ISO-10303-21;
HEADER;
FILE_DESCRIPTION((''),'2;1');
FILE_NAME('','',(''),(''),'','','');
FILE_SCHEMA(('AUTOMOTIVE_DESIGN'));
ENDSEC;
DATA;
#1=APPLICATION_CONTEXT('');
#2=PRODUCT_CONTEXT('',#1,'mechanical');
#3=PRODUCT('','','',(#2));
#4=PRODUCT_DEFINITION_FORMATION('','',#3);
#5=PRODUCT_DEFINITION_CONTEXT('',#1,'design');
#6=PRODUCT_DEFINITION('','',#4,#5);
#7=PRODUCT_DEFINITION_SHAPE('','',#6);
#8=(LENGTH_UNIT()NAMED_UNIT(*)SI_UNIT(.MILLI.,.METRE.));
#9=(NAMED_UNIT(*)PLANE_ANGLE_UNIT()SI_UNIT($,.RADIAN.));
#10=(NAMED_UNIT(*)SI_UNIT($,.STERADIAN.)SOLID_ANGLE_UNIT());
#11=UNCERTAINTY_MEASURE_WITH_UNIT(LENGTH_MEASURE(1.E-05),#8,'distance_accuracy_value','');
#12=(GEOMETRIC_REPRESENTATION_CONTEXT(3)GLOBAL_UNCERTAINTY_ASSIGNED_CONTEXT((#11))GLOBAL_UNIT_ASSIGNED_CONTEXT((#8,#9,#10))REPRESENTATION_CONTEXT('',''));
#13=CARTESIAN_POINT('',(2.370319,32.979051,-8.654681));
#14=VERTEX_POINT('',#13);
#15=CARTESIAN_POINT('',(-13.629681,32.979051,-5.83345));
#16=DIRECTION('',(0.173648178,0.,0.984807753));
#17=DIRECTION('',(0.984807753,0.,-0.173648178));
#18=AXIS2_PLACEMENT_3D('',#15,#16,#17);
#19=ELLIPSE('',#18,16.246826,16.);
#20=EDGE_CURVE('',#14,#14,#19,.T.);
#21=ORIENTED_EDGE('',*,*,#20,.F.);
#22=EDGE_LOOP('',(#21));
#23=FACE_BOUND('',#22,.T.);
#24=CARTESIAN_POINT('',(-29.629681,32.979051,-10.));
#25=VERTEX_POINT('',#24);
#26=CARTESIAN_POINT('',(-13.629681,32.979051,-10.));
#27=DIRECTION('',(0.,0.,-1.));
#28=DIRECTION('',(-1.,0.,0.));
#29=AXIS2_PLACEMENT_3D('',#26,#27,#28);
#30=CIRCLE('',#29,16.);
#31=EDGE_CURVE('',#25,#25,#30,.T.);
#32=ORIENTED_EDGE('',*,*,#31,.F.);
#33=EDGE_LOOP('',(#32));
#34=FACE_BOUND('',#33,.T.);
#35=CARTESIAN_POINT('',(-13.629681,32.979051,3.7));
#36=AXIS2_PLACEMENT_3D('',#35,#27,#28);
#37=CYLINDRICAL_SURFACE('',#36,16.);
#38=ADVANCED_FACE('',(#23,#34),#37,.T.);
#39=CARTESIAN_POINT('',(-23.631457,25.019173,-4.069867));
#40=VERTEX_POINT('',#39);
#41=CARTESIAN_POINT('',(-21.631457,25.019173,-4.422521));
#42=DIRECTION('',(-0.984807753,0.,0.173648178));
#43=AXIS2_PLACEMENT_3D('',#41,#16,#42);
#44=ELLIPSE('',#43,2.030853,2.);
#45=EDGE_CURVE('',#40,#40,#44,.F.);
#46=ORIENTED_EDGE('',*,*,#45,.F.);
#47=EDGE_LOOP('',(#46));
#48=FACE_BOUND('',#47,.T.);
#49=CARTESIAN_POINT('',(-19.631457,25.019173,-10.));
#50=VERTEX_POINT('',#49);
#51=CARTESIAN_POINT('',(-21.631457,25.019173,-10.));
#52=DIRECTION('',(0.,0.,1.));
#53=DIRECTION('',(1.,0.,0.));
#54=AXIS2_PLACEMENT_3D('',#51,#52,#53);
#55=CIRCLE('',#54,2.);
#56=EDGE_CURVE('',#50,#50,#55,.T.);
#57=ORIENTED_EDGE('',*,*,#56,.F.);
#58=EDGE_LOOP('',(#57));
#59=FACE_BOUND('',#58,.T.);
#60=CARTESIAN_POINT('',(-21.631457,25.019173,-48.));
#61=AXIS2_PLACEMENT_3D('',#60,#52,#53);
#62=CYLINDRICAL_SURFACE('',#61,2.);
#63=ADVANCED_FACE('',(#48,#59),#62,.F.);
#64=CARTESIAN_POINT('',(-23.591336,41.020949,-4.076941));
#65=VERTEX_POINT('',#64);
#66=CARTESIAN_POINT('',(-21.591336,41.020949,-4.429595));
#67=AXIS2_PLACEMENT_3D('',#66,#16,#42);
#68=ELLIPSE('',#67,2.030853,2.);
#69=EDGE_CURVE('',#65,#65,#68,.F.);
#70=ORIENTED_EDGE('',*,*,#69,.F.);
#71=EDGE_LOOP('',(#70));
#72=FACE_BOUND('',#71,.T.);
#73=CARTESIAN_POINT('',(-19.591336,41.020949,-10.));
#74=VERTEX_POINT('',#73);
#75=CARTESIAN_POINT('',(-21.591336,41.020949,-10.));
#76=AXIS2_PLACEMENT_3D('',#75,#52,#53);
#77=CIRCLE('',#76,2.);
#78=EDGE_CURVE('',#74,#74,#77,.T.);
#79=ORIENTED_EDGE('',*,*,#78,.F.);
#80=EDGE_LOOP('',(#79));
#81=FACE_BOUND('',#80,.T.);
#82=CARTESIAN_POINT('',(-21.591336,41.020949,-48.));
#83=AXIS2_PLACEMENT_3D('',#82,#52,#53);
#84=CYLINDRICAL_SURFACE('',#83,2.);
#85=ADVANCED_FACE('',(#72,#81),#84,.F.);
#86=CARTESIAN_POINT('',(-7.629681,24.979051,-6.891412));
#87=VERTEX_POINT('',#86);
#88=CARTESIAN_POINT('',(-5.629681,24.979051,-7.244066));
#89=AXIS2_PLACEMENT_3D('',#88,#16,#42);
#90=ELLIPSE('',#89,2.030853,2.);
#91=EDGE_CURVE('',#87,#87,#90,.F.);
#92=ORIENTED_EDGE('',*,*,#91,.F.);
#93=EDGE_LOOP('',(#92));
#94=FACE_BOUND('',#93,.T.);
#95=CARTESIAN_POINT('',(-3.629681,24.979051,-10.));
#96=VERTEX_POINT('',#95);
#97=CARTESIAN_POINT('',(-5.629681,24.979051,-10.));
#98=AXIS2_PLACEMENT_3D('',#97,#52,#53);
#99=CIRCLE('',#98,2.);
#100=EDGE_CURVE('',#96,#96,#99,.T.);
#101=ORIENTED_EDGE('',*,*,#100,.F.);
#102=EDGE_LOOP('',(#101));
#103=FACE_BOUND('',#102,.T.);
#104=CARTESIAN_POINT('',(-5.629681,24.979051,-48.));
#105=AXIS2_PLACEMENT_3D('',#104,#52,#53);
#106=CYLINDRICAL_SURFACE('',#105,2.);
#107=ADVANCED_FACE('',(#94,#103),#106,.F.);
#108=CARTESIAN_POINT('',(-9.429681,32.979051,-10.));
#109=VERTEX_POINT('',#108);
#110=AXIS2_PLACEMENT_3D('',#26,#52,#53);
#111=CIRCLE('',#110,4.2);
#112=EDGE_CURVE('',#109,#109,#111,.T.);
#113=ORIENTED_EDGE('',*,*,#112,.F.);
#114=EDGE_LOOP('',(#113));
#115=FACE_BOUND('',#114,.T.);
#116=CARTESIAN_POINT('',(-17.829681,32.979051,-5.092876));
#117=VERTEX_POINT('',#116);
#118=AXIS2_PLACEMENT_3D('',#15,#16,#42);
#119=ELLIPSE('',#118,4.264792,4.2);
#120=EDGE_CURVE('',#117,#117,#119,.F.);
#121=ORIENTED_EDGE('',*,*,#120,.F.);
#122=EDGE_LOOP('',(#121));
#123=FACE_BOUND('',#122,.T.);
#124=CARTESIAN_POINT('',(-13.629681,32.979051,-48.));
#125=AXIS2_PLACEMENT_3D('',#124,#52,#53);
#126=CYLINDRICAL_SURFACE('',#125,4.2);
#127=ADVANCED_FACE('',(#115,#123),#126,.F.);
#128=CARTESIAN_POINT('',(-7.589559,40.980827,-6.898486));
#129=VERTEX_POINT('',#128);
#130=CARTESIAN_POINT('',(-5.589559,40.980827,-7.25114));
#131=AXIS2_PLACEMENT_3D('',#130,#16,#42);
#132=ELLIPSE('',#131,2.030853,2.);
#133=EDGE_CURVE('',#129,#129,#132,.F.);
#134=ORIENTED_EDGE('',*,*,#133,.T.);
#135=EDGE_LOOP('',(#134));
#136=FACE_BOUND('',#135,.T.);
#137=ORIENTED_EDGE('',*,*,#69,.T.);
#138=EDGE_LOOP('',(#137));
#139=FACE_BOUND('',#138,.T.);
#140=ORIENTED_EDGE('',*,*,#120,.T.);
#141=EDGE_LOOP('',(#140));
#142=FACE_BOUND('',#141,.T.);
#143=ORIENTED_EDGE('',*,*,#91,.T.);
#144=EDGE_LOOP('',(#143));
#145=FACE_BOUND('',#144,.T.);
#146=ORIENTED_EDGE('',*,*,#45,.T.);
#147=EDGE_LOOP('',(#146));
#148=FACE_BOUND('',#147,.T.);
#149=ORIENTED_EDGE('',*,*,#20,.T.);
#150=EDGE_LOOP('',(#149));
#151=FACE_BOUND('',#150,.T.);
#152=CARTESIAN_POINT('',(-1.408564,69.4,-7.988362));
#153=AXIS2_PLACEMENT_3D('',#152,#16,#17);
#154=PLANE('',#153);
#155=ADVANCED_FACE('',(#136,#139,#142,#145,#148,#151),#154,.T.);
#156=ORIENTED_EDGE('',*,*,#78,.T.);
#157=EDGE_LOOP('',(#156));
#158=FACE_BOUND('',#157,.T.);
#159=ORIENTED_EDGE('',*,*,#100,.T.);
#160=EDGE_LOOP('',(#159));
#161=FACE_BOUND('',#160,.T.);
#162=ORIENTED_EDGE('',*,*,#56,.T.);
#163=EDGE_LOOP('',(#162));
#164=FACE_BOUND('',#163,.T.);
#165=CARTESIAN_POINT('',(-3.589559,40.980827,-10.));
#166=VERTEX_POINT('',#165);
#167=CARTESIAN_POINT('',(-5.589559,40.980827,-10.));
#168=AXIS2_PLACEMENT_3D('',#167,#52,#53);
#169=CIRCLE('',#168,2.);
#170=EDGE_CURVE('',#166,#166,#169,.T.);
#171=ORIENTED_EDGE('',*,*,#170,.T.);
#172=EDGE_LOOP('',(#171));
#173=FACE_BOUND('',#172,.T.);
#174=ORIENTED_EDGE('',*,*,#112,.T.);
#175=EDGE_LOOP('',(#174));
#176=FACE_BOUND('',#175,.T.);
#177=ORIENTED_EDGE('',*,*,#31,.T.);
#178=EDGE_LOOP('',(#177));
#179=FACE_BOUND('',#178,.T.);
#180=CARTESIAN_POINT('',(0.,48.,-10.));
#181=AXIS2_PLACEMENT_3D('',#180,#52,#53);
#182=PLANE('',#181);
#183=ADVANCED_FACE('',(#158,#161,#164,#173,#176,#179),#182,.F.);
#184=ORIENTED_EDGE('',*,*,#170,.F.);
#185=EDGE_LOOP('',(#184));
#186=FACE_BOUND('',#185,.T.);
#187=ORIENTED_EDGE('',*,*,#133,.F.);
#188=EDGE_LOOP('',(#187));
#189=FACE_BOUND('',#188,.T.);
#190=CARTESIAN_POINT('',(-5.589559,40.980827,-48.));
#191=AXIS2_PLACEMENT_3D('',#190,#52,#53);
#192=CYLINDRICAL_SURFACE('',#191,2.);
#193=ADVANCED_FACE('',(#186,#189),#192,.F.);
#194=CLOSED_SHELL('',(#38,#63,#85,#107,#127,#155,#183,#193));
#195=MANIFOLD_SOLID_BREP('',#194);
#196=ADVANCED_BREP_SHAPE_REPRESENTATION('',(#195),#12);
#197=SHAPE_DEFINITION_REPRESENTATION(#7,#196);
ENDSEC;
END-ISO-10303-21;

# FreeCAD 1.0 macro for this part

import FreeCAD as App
import Part
import Sketcher
Q = App.Units.Quantity


def add_polygon(sketch, points):
    """Adds a closed chain of lines whose ends are joined by coincident constraints."""
    first, n = sketch.GeometryCount, len(points)
    for a, b in zip(points, points[1:] + points[:1]):
        sketch.addGeometry(Part.LineSegment(App.Vector(*a, 0), App.Vector(*b, 0)), False)
    for i in range(n):
        sketch.addConstraint(Sketcher.Constraint("Coincident", first + i, 2, first + (i + 1) % n, 1))

doc = App.newDocument("Part")
body = doc.addObject("PartDesign::Body", "Body")

sketch1 = body.newObject("Sketcher::SketchObject", "Sketch")
sketch1.AttachmentSupport = (doc.getObject("XZ_Plane"), [""])
sketch1.MapMode = "FlatFace"
add_polygon(sketch1, [(-32, -10), (-32, 0), (0, 0), (0, 29), (10, 29), (10, -10)])
sketch1.addConstraint([
    Sketcher.Constraint("Vertical", 0),
    Sketcher.Constraint("Horizontal", 1),
    Sketcher.Constraint("Vertical", 2),
    Sketcher.Constraint("Horizontal", 3),
    Sketcher.Constraint("Vertical", 4),
    Sketcher.Constraint("Horizontal", 5),
    Sketcher.Constraint("Coincident", 1, 2, -1, 1),
    Sketcher.Constraint("Equal", 3, 0),
    Sketcher.Constraint("DistanceX", 3, 1, 3, 2, Q("10 mm")),
    Sketcher.Constraint("DistanceY", 2, 1, 2, 2, Q("29 mm")),
    Sketcher.Constraint("DistanceX", 1, 1, 1, 2, Q("31.85 mm")),
])
pad1 = body.newObject("PartDesign::Pad", "Pad")
pad1.Profile = sketch1
pad1.Length = 48
pad1.Reversed = True

sketch2 = body.newObject("Sketcher::SketchObject", "Sketch001")
sketch2.AttachmentSupport = (doc.getObject("XY_Plane"), [""])
sketch2.MapMode = "FlatFace"
sketch2.addGeometry([
    Part.Circle(App.Vector(-5.6, 41, 0), App.Vector(0, 0, 1), 2),
    Part.Circle(App.Vector(-5.6, 25, 0), App.Vector(0, 0, 1), 2),
    Part.Circle(App.Vector(-21.6, 41, 0), App.Vector(0, 0, 1), 2),
    Part.Circle(App.Vector(-21.6, 25, 0), App.Vector(0, 0, 1), 2),
    Part.Circle(App.Vector(-13.6, 33, 0), App.Vector(0, 0, 1), 4.2),
], False)
sketch2.addConstraint([
    Sketcher.Constraint("Equal", 0, 1),
    Sketcher.Constraint("Equal", 1, 2),
    Sketcher.Constraint("Equal", 2, 3),
    Sketcher.Constraint("Diameter", 0, Q("4 mm")),
    Sketcher.Constraint("Diameter", 4, Q("8.4 mm")),
    Sketcher.Constraint("DistanceX", 4, 3, 1, 3, Q("8 mm")),
    Sketcher.Constraint("DistanceY", 1, 3, 4, 3, Q("8 mm")),
    Sketcher.Constraint("DistanceX", 0, 3, -1, 1, Q("5.589559 mm")),
    Sketcher.Constraint("DistanceX", 1, 3, -1, 1, Q("5.629681 mm")),
    Sketcher.Constraint("DistanceY", -1, 1, 1, 3, Q("24.979051 mm")),
    Sketcher.Constraint("DistanceY", -1, 1, 2, 3, Q("41.020949 mm")),
    Sketcher.Constraint("DistanceY", 0, 3, 2, 3, Q("0.040122 mm")),
    Sketcher.Constraint("DistanceX", 3, 3, 2, 3, Q("0.040122 mm")),
    Sketcher.Constraint("DistanceY", 1, 3, 3, 3, Q("0.040122 mm")),
    Sketcher.Constraint("DistanceX", 2, 3, -1, 1, Q("21.591336 mm")),
])
pocket1 = body.newObject("PartDesign::Pocket", "Pocket")
pocket1.Profile = sketch2
pocket1.Length = 48

sketch3 = body.newObject("Sketcher::SketchObject", "Sketch002")
sketch3.AttachmentSupport = (doc.getObject("XZ_Plane"), [""])
sketch3.MapMode = "FlatFace"
add_polygon(sketch3, [(-66, 36), (-66, -21), (34, -21), (34, 36)])
sketch3.addConstraint([
    Sketcher.Constraint("Vertical", 0),
    Sketcher.Constraint("Horizontal", 1),
    Sketcher.Constraint("Vertical", 2),
    Sketcher.Constraint("Horizontal", 3),
    Sketcher.Constraint("DistanceX", 1, 1, 1, 2, Q("100.326593 mm")),
    Sketcher.Constraint("DistanceY", 0, 2, 0, 1, Q("57.143743 mm")),
    Sketcher.Constraint("DistanceX", -1, 1, 1, 2, Q("34.018691 mm")),
    Sketcher.Constraint("DistanceY", 0, 2, -1, 1, Q("20.768297 mm")),
])
pocket2 = body.newObject("PartDesign::Pocket", "Pocket001")
pocket2.Profile = sketch3
pocket2.Length = 14.7

sketch4 = body.newObject("Sketcher::SketchObject", "Sketch003")
sketch4.AttachmentSupport = (doc.getObject("XZ_Plane"), [""])
sketch4.MapMode = "FlatFace"
sketch4.AttachmentOffset = App.Placement(App.Vector(0, 0, -14.7), App.Rotation())
add_polygon(sketch4, [(-31.9, -2.6), (10, -10), (10, 29), (0, 29), (0, 0), (-31.9, 0)])
sketch4.addConstraint([
    Sketcher.Constraint("Vertical", 1),
    Sketcher.Constraint("Horizontal", 2),
    Sketcher.Constraint("Vertical", 3),
    Sketcher.Constraint("Horizontal", 4),
    Sketcher.Constraint("Vertical", 5),
    Sketcher.Constraint("Coincident", 3, 2, -1, 1),
    Sketcher.Constraint("DistanceX", 2, 2, 2, 1, Q("10 mm")),
    Sketcher.Constraint("DistanceY", 1, 1, 1, 2, Q("39 mm")),
    Sketcher.Constraint("DistanceY", 3, 2, 3, 1, Q("29 mm")),
    Sketcher.Constraint("Angle", 0, Q("-10 deg")),
    Sketcher.Constraint("DistanceX", 4, 2, 4, 1, Q("31.85 mm")),
])
pocket3 = body.newObject("PartDesign::Pocket", "Pocket002")
pocket3.Profile = sketch4
pocket3.Length = 54.7

sketch5 = body.newObject("Sketcher::SketchObject", "Sketch004")
sketch5.AttachmentSupport = (doc.getObject("XZ_Plane"), [""])
sketch5.MapMode = "FlatFace"
sketch5.AttachmentOffset = App.Placement(App.Vector(0, 0, -48), App.Rotation())
add_polygon(sketch5, [(-32, -10), (-32, -3), (10, -10)])
sketch5.addConstraint([
    Sketcher.Constraint("Vertical", 0),
    Sketcher.Constraint("Horizontal", 2),
    Sketcher.Constraint("Angle", 1, Q("-10 deg")),
    Sketcher.Constraint("DistanceX", -1, 1, 1, 2, Q("10 mm")),
    Sketcher.Constraint("DistanceY", 1, 2, -1, 1, Q("10 mm")),
    Sketcher.Constraint("DistanceX", 2, 2, 2, 1, Q("41.85 mm")),
])
pad2 = body.newObject("PartDesign::Pad", "Pad001")
pad2.Profile = sketch5
pad2.Length = 13.7
pad2.Reversed = True

sketch6 = body.newObject("Sketcher::SketchObject", "Sketch005")
sketch6.AttachmentSupport = (doc.getObject("XY_Plane"), [""])
sketch6.MapMode = "FlatFace"
sketch6.AttachmentOffset = App.Placement(App.Vector(0, 0, -10), App.Rotation())
add_polygon(sketch6, [(15, 86), (15, 0), (-40, 0), (-40, 86)])
sketch6.addGeometry(Part.Circle(App.Vector(-14, 33, 0), App.Vector(0, 0, 1), 16), False)
sketch6.addConstraint([
    Sketcher.Constraint("Vertical", 0),
    Sketcher.Constraint("Horizontal", 1),
    Sketcher.Constraint("Vertical", 2),
    Sketcher.Constraint("Horizontal", 3),
    Sketcher.Constraint("PointOnObject", 0, 2, -1),
    Sketcher.Constraint("Diameter", 4, Q("32 mm")),
    Sketcher.Constraint("DistanceY", 0, 2, 0, 1, Q("86.451998 mm")),
    Sketcher.Constraint("DistanceX", 1, 2, 1, 1, Q("55.248241 mm")),
    Sketcher.Constraint("DistanceX", 4, 3, -1, 1, Q("13.629681 mm")),
    Sketcher.Constraint("DistanceY", -1, 1, 4, 3, Q("32.979051 mm")),
    Sketcher.Constraint("DistanceX", 4, 3, 0, 2, Q("28.465159 mm")),
])
pocket4 = body.newObject("PartDesign::Pocket", "Pocket003")
pocket4.Profile = sketch6
pocket4.Length = 13.7
pocket4.Reversed = True

doc.recompute()
